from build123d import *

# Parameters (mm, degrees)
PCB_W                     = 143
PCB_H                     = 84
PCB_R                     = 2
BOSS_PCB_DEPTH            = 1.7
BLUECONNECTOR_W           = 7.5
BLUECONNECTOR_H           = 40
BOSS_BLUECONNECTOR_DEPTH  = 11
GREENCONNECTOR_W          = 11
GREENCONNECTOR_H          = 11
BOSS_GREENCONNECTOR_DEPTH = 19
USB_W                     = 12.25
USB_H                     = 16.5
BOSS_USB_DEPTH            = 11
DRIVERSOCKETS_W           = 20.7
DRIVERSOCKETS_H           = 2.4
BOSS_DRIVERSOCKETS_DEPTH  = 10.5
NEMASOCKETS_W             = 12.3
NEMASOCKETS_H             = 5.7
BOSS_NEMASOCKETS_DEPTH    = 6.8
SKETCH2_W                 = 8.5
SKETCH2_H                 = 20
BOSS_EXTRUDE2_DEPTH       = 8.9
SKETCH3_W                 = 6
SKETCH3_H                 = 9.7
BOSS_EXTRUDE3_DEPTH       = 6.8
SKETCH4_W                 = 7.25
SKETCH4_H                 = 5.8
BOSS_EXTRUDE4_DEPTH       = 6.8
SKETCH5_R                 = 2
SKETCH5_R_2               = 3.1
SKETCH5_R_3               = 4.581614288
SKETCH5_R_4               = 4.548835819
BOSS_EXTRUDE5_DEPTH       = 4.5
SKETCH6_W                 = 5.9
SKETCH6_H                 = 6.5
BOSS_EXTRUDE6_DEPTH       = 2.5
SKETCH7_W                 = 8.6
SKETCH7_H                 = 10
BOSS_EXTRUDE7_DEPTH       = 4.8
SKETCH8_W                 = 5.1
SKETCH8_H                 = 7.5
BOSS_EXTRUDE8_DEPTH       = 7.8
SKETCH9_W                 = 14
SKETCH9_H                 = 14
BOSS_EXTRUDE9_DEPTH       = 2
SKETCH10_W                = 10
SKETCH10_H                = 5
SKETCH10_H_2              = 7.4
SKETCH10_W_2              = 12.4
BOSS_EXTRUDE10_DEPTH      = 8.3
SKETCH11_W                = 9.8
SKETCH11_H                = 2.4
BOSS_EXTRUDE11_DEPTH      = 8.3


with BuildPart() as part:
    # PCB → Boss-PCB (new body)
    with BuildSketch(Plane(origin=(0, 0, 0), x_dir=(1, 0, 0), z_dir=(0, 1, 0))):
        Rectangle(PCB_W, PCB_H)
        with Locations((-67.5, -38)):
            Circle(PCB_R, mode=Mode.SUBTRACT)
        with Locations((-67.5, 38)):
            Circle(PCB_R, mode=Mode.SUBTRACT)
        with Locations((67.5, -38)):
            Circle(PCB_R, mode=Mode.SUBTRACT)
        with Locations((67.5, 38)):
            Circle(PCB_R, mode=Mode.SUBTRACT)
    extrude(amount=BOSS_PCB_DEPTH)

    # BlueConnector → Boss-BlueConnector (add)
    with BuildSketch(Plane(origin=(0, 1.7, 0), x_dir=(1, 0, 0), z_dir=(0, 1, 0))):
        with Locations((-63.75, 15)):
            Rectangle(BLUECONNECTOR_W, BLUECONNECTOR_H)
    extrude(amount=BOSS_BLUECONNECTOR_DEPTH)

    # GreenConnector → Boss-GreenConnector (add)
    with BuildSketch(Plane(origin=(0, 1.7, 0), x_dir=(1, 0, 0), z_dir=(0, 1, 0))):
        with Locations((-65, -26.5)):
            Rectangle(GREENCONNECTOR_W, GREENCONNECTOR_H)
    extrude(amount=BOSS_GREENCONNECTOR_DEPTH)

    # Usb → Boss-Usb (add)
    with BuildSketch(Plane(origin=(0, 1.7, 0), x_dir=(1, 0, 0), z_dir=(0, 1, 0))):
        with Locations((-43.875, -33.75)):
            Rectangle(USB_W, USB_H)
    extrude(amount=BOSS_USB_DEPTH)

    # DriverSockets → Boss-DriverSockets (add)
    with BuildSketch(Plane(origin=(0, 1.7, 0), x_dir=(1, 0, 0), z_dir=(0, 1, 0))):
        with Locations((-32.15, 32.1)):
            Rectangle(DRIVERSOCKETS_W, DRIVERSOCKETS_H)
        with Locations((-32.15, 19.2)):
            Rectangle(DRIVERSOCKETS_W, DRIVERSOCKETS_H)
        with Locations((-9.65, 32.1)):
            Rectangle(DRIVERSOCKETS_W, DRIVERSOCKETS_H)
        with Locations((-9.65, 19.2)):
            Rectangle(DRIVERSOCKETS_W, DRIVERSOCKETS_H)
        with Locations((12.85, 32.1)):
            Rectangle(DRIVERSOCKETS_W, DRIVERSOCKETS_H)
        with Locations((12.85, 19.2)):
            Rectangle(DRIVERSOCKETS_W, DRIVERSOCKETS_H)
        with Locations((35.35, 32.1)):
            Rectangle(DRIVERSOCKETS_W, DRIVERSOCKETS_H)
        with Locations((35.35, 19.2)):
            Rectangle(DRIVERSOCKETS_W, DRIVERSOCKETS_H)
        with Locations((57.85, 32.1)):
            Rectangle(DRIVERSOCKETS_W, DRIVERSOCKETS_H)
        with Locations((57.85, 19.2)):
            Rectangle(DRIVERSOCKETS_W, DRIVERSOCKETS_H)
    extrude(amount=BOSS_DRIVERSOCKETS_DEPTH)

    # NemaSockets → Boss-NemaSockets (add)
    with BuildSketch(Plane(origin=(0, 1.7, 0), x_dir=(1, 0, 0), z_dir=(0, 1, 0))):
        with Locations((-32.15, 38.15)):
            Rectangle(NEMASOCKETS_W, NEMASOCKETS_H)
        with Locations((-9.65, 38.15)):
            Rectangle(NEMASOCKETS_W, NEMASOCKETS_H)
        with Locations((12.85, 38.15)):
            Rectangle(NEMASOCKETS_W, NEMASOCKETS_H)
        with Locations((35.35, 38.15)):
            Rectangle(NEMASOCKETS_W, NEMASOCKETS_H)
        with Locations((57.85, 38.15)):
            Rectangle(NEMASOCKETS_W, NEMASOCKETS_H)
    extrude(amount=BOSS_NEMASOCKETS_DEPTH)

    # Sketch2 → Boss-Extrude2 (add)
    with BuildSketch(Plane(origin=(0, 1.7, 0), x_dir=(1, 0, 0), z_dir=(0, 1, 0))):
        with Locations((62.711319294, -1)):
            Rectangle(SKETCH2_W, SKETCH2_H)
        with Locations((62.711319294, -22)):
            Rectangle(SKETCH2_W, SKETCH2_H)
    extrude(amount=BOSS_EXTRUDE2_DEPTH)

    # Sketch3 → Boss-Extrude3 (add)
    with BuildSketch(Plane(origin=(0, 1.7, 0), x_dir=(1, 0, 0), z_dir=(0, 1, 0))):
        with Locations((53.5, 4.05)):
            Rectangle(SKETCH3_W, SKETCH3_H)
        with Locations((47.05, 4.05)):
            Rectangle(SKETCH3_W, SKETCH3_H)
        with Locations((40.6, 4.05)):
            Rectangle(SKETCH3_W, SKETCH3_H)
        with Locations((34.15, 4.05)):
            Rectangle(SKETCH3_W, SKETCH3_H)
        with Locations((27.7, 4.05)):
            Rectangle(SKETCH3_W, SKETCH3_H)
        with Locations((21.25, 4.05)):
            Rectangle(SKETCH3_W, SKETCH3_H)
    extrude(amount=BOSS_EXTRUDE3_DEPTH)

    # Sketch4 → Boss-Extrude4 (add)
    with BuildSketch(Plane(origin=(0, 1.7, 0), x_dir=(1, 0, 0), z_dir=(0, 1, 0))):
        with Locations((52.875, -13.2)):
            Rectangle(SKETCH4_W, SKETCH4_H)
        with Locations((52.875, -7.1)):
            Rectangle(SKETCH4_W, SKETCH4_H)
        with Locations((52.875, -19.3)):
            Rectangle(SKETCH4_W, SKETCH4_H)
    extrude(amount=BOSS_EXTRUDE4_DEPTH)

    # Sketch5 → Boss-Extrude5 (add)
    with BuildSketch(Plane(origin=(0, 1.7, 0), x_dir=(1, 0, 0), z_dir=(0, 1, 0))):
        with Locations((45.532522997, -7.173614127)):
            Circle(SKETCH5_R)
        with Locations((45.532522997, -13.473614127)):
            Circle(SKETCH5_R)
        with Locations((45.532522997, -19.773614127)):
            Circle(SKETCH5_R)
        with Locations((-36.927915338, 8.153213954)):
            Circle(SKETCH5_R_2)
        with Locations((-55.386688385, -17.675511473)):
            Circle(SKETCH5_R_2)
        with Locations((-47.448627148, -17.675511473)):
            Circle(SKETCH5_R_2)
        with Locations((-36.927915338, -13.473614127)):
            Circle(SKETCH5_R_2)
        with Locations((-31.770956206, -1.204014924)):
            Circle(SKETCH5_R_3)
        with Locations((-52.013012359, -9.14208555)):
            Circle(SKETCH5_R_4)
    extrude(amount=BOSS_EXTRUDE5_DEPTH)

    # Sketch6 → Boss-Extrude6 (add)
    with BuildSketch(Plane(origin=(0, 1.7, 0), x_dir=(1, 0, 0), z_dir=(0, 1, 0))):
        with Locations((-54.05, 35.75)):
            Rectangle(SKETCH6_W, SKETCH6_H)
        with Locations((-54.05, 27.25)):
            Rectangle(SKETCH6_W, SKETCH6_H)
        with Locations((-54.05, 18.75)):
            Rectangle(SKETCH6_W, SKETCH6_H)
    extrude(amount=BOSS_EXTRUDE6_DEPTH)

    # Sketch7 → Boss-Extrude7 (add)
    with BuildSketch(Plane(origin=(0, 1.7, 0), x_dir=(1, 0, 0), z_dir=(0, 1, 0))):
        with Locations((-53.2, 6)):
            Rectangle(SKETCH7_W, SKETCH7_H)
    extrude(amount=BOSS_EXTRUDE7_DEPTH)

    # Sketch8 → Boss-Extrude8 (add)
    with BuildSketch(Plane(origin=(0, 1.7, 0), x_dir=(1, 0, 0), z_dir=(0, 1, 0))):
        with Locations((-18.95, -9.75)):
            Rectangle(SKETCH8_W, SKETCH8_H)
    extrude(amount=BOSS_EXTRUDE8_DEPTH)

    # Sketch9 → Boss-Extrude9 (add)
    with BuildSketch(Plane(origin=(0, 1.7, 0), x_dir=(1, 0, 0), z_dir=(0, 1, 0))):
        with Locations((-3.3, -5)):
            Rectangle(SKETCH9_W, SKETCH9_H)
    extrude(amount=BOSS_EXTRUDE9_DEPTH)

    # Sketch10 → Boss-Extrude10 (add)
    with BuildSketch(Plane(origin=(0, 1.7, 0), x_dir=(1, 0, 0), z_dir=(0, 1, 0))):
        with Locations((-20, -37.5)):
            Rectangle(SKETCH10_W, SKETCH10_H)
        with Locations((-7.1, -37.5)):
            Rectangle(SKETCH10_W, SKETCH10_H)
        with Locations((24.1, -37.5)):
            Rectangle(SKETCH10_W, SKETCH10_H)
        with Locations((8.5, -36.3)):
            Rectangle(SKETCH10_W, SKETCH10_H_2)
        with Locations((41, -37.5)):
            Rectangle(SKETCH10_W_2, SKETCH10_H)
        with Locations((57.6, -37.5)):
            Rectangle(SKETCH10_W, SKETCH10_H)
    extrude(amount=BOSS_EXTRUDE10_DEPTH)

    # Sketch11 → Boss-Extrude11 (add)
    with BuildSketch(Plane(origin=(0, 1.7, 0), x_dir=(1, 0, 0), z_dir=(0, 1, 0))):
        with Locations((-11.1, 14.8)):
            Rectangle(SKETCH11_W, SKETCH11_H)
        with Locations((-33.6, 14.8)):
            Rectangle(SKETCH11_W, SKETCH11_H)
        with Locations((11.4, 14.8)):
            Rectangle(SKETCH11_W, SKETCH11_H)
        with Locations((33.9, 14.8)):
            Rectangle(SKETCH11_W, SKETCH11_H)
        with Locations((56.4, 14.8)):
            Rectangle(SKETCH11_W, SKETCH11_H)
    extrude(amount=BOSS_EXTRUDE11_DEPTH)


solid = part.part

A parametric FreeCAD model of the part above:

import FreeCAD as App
import Part
import Sketcher
from FreeCAD import Vector


def add_polygon(sketch, points):
    """Adds a closed chain of lines whose ends are joined by coincident constraints."""
    first, n = sketch.GeometryCount, len(points)
    for a, b in zip(points, points[1:] + points[:1]):
        sketch.addGeometry(Part.LineSegment(App.Vector(*a, 0), App.Vector(*b, 0)), False)
    for i in range(n):
        sketch.addConstraint(Sketcher.Constraint("Coincident", first + i, 2, first + (i + 1) % n, 1))

doc = App.newDocument("Part")
body = doc.addObject("PartDesign::Body", "Body")

# Sketch on XZ plane
sketch1 = body.newObject("Sketcher::SketchObject", "Sketch")
sketch1.AttachmentSupport = (doc.getObject("XZ_Plane"), [""])
sketch1.MapMode = "FlatFace"
add_polygon(sketch1, [(-71.5, -42), (-71.5, 42), (71.5, 42), (71.5, -42)])  # lines 0-3
sketch1.addGeometry(Part.Circle(Vector(-67.5, 38, 0), Vector(0, 0, 1), 2), False)  # 4
sketch1.addGeometry(Part.Circle(Vector(67.5, 38, 0), Vector(0, 0, 1), 2), False)  # 5
sketch1.addGeometry(Part.Circle(Vector(-67.5, -38, 0), Vector(0, 0, 1), 2), False)  # 6
sketch1.addGeometry(Part.Circle(Vector(67.5, -38, 0), Vector(0, 0, 1), 2), False)  # 7
sketch1.addConstraint(Sketcher.Constraint("Vertical", 0))
sketch1.addConstraint(Sketcher.Constraint("Horizontal", 1))
sketch1.addConstraint(Sketcher.Constraint("Vertical", 2))
sketch1.addConstraint(Sketcher.Constraint("Horizontal", 3))
sketch1.addConstraint(Sketcher.Constraint("Equal", 4, 5))
sketch1.addConstraint(Sketcher.Constraint("Equal", 5, 6))
sketch1.addConstraint(Sketcher.Constraint("Equal", 6, 7))
sketch1.addConstraint(Sketcher.Constraint("Symmetric", 5, 3, 6, 3, -1, 1))
sketch1.addConstraint(Sketcher.Constraint("Symmetric", 4, 3, 7, 3, -1, 1))
sketch1.addConstraint(Sketcher.Constraint("Symmetric", 0, 2, 2, 2, -1, 1))
sketch1.addConstraint(Sketcher.Constraint("Symmetric", 4, 3, 5, 3, -2))
sketch1.addConstraint(Sketcher.Constraint("Diameter", 4, 4.0))
sketch1.addConstraint(Sketcher.Constraint("DistanceX", 1, 1, 1, 2, 143.0))
sketch1.addConstraint(Sketcher.Constraint("DistanceY", 0, 1, 0, 2, 84.0))
sketch1.addConstraint(Sketcher.Constraint("DistanceY", -1, 1, 4, 3, 38.0))
sketch1.addConstraint(Sketcher.Constraint("DistanceX", 4, 3, 5, 3, 135.0))
pad1 = body.newObject("PartDesign::Pad", "Pad")
pad1.Profile = sketch1
pad1.Length = 1.7
pad1.Reversed = True

# Sketch on XZ plane
sketch2 = body.newObject("Sketcher::SketchObject", "Sketch001")
sketch2.AttachmentSupport = (doc.getObject("XZ_Plane"), [""])
sketch2.MapMode = "FlatFace"
sketch2.AttachmentOffset = App.Placement(Vector(0, 0, -1.7), App.Rotation())
add_polygon(sketch2, [(-68, -35), (-68, 5), (-60, 5), (-60, -35)])  # lines 0-3
sketch2.addConstraint(Sketcher.Constraint("Vertical", 0))
sketch2.addConstraint(Sketcher.Constraint("Horizontal", 1))
sketch2.addConstraint(Sketcher.Constraint("Vertical", 2))
sketch2.addConstraint(Sketcher.Constraint("Horizontal", 3))
sketch2.addConstraint(Sketcher.Constraint("DistanceY", 0, 1, 0, 2, 40.0))
sketch2.addConstraint(Sketcher.Constraint("DistanceX", 1, 1, 1, 2, 7.5))
sketch2.addConstraint(Sketcher.Constraint("DistanceY", -1, 1, 0, 2, 5.0))
sketch2.addConstraint(Sketcher.Constraint("DistanceX", 1, 2, -1, 1, 60.0))
pad2 = body.newObject("PartDesign::Pad", "Pad001")
pad2.Profile = sketch2
pad2.Length = 11
pad2.Reversed = True

# Sketch on XZ plane
sketch3 = body.newObject("Sketcher::SketchObject", "Sketch002")
sketch3.AttachmentSupport = (doc.getObject("XZ_Plane"), [""])
sketch3.MapMode = "FlatFace"
sketch3.AttachmentOffset = App.Placement(Vector(0, 0, -1.7), App.Rotation())
add_polygon(sketch3, [(-70, 21), (-70, 32), (-60, 32), (-60, 21)])  # lines 0-3
sketch3.addConstraint(Sketcher.Constraint("Vertical", 0))
sketch3.addConstraint(Sketcher.Constraint("Horizontal", 1))
sketch3.addConstraint(Sketcher.Constraint("Vertical", 2))
sketch3.addConstraint(Sketcher.Constraint("Horizontal", 3))
sketch3.addConstraint(Sketcher.Constraint("Equal", 3, 0))
sketch3.addConstraint(Sketcher.Constraint("DistanceX", 1, 1, 1, 2, 11.0))
sketch3.addConstraint(Sketcher.Constraint("DistanceY", -1, 1, 0, 2, 32.0))
sketch3.addConstraint(Sketcher.Constraint("DistanceX", 0, 2, -1, 1, 70.5))
pad3 = body.newObject("PartDesign::Pad", "Pad002")
pad3.Profile = sketch3
pad3.Length = 19
pad3.Reversed = True

# Sketch on XZ plane
sketch4 = body.newObject("Sketcher::SketchObject", "Sketch003")
sketch4.AttachmentSupport = (doc.getObject("XZ_Plane"), [""])
sketch4.MapMode = "FlatFace"
sketch4.AttachmentOffset = App.Placement(Vector(0, 0, -1.7), App.Rotation())
add_polygon(sketch4, [(-50, 26), (-50, 42), (-38, 42), (-38, 26)])  # lines 0-3
sketch4.addConstraint(Sketcher.Constraint("Vertical", 0))
sketch4.addConstraint(Sketcher.Constraint("Horizontal", 1))
sketch4.addConstraint(Sketcher.Constraint("Vertical", 2))
sketch4.addConstraint(Sketcher.Constraint("Horizontal", 3))
sketch4.addConstraint(Sketcher.Constraint("DistanceY", 0, 1, 0, 2, 16.5))
sketch4.addConstraint(Sketcher.Constraint("DistanceX", 0, 2, -1, 1, 50.0))
sketch4.addConstraint(Sketcher.Constraint("DistanceY", -1, 1, 0, 2, 42.0))
sketch4.addConstraint(Sketcher.Constraint("DistanceX", 1, 1, 1, 2, 12.25))
pad4 = body.newObject("PartDesign::Pad", "Pad003")
pad4.Profile = sketch4
pad4.Length = 11
pad4.Reversed = True

# Sketch on XZ plane
sketch5 = body.newObject("Sketcher::SketchObject", "Sketch004")
sketch5.AttachmentSupport = (doc.getObject("XZ_Plane"), [""])
sketch5.MapMode = "FlatFace"
sketch5.AttachmentOffset = App.Placement(Vector(0, 0, -1.7), App.Rotation())
add_polygon(sketch5, [(-42.5, -33.3), (-42.5, -30.9), (-21.8, -30.9), (-21.8, -33.3)])  # lines 0-3
add_polygon(sketch5, [(-42.5, -20.4), (-42.5, -18), (-21.8, -18), (-21.8, -20.4)])  # lines 4-7
add_polygon(sketch5, [(-20, -33.3), (-20, -30.9), (0.7, -30.9), (0.7, -33.3)])  # lines 8-11
add_polygon(sketch5, [(-20, -20.4), (-20, -18), (0.7, -18), (0.7, -20.4)])  # lines 12-15
add_polygon(sketch5, [(2.5, -33.3), (2.5, -30.9), (23.2, -30.9), (23.2, -33.3)])  # lines 16-19
add_polygon(sketch5, [(2.5, -20.4), (2.5, -18), (23.2, -18), (23.2, -20.4)])  # lines 20-23
add_polygon(sketch5, [(25, -33.3), (25, -30.9), (45.7, -30.9), (45.7, -33.3)])  # lines 24-27
add_polygon(sketch5, [(25, -20.4), (25, -18), (45.7, -18), (45.7, -20.4)])  # lines 28-31
add_polygon(sketch5, [(47.5, -33.3), (47.5, -30.9), (68.2, -30.9), (68.2, -33.3)])  # lines 32-35
add_polygon(sketch5, [(47.5, -20.4), (47.5, -18), (68.2, -18), (68.2, -20.4)])  # lines 36-39
sketch5.addConstraint(Sketcher.Constraint("Vertical", 0))
sketch5.addConstraint(Sketcher.Constraint("Horizontal", 1))
sketch5.addConstraint(Sketcher.Constraint("Vertical", 2))
sketch5.addConstraint(Sketcher.Constraint("Horizontal", 3))
sketch5.addConstraint(Sketcher.Constraint("Vertical", 4))
sketch5.addConstraint(Sketcher.Constraint("Horizontal", 5))
sketch5.addConstraint(Sketcher.Constraint("Vertical", 6))
sketch5.addConstraint(Sketcher.Constraint("Horizontal", 7))
sketch5.addConstraint(Sketcher.Constraint("Vertical", 8))
sketch5.addConstraint(Sketcher.Constraint("Horizontal", 9))
sketch5.addConstraint(Sketcher.Constraint("Vertical", 10))
sketch5.addConstraint(Sketcher.Constraint("Horizontal", 11))
sketch5.addConstraint(Sketcher.Constraint("Vertical", 12))
sketch5.addConstraint(Sketcher.Constraint("Horizontal", 13))
sketch5.addConstraint(Sketcher.Constraint("Vertical", 14))
sketch5.addConstraint(Sketcher.Constraint("Horizontal", 15))
sketch5.addConstraint(Sketcher.Constraint("Vertical", 16))
sketch5.addConstraint(Sketcher.Constraint("Horizontal", 17))
sketch5.addConstraint(Sketcher.Constraint("Vertical", 18))
sketch5.addConstraint(Sketcher.Constraint("Horizontal", 19))
sketch5.addConstraint(Sketcher.Constraint("Vertical", 20))
sketch5.addConstraint(Sketcher.Constraint("Horizontal", 21))
sketch5.addConstraint(Sketcher.Constraint("Vertical", 22))
sketch5.addConstraint(Sketcher.Constraint("Horizontal", 23))
sketch5.addConstraint(Sketcher.Constraint("Vertical", 24))
sketch5.addConstraint(Sketcher.Constraint("Horizontal", 25))
sketch5.addConstraint(Sketcher.Constraint("Vertical", 26))
sketch5.addConstraint(Sketcher.Constraint("Horizontal", 27))
sketch5.addConstraint(Sketcher.Constraint("Vertical", 28))
sketch5.addConstraint(Sketcher.Constraint("Horizontal", 29))
sketch5.addConstraint(Sketcher.Constraint("Vertical", 30))
sketch5.addConstraint(Sketcher.Constraint("Horizontal", 31))
sketch5.addConstraint(Sketcher.Constraint("Vertical", 32))
sketch5.addConstraint(Sketcher.Constraint("Horizontal", 33))
sketch5.addConstraint(Sketcher.Constraint("Vertical", 34))
sketch5.addConstraint(Sketcher.Constraint("Horizontal", 35))
sketch5.addConstraint(Sketcher.Constraint("Vertical", 36))
sketch5.addConstraint(Sketcher.Constraint("Horizontal", 37))
sketch5.addConstraint(Sketcher.Constraint("Vertical", 38))
sketch5.addConstraint(Sketcher.Constraint("Horizontal", 39))
sketch5.addConstraint(Sketcher.Constraint("Horizontal", 1, 2, 8, 2))
sketch5.addConstraint(Sketcher.Constraint("Horizontal", 3, 2, 10, 2))
sketch5.addConstraint(Sketcher.Constraint("Horizontal", 5, 2, 12, 2))
sketch5.addConstraint(Sketcher.Constraint("Horizontal", 7, 2, 14, 2))
sketch5.addConstraint(Sketcher.Constraint("Horizontal", 9, 2, 16, 2))
sketch5.addConstraint(Sketcher.Constraint("Horizontal", 11, 2, 18, 2))
sketch5.addConstraint(Sketcher.Constraint("Horizontal", 13, 2, 20, 2))
sketch5.addConstraint(Sketcher.Constraint("Horizontal", 15, 2, 22, 2))
sketch5.addConstraint(Sketcher.Constraint("Horizontal", 17, 2, 24, 2))
sketch5.addConstraint(Sketcher.Constraint("Horizontal", 19, 2, 26, 2))
sketch5.addConstraint(Sketcher.Constraint("Horizontal", 21, 2, 28, 2))
sketch5.addConstraint(Sketcher.Constraint("Horizontal", 23, 2, 30, 2))
sketch5.addConstraint(Sketcher.Constraint("Horizontal", 25, 2, 32, 2))
sketch5.addConstraint(Sketcher.Constraint("Horizontal", 27, 2, 34, 2))
sketch5.addConstraint(Sketcher.Constraint("Horizontal", 29, 2, 36, 2))
sketch5.addConstraint(Sketcher.Constraint("Horizontal", 31, 2, 38, 2))
sketch5.addConstraint(Sketcher.Constraint("Vertical", 3, 2, 4, 2))
sketch5.addConstraint(Sketcher.Constraint("Vertical", 2, 2, 5, 2))
sketch5.addConstraint(Sketcher.Constraint("Vertical", 11, 2, 12, 2))
sketch5.addConstraint(Sketcher.Constraint("Vertical", 10, 2, 13, 2))
sketch5.addConstraint(Sketcher.Constraint("Vertical", 19, 2, 20, 2))
sketch5.addConstraint(Sketcher.Constraint("Vertical", 18, 2, 21, 2))
sketch5.addConstraint(Sketcher.Constraint("Vertical", 27, 2, 28, 2))
sketch5.addConstraint(Sketcher.Constraint("Vertical", 26, 2, 29, 2))
sketch5.addConstraint(Sketcher.Constraint("Vertical", 35, 2, 36, 2))
sketch5.addConstraint(Sketcher.Constraint("Vertical", 34, 2, 37, 2))
sketch5.addConstraint(Sketcher.Constraint("Equal", 7, 9))
sketch5.addConstraint(Sketcher.Constraint("Equal", 15, 17))
sketch5.addConstraint(Sketcher.Constraint("Equal", 23, 25))
sketch5.addConstraint(Sketcher.Constraint("Equal", 31, 33))
sketch5.addConstraint(Sketcher.Constraint("Equal", 2, 4))
sketch5.addConstraint(Sketcher.Constraint("DistanceX", 1, 1, 1, 2, 20.7))
sketch5.addConstraint(Sketcher.Constraint("DistanceY", 0, 1, 0, 2, 2.4))
sketch5.addConstraint(Sketcher.Constraint("DistanceY", 4, 2, -1, 1, 18.0))
sketch5.addConstraint(Sketcher.Constraint("DistanceX", 8, 2, -1, 1, 20.0))
sketch5.addConstraint(Sketcher.Constraint("DistanceX", -1, 1, 24, 2, 25.0))
sketch5.addConstraint(Sketcher.Constraint("DistanceX", 0, 2, -1, 1, 42.5))
sketch5.addConstraint(Sketcher.Constraint("DistanceY", 0, 2, -1, 1, 30.9))
sketch5.addConstraint(Sketcher.Constraint("DistanceX", -1, 1, 16, 2, 2.5))
sketch5.addConstraint(Sketcher.Constraint("DistanceX", -1, 1, 32, 2, 47.5))
pad5 = body.newObject("PartDesign::Pad", "Pad004")
pad5.Profile = sketch5
pad5.Length = 10.5
pad5.Reversed = True

# Sketch on XZ plane
sketch6 = body.newObject("Sketcher::SketchObject", "Sketch005")
sketch6.AttachmentSupport = (doc.getObject("XZ_Plane"), [""])
sketch6.MapMode = "FlatFace"
sketch6.AttachmentOffset = App.Placement(Vector(0, 0, -1.7), App.Rotation())
add_polygon(sketch6, [(-38, -41), (-38, -35), (-26, -35), (-26, -41)])  # lines 0-3
add_polygon(sketch6, [(-16, -41), (-16, -35), (-4, -35), (-4, -41)])  # lines 4-7
add_polygon(sketch6, [(7, -41), (7, -35), (19, -35), (19, -41)])  # lines 8-11
add_polygon(sketch6, [(29, -41), (29, -35), (42, -35), (42, -41)])  # lines 12-15
add_polygon(sketch6, [(52, -41), (52, -35), (64, -35), (64, -41)])  # lines 16-19
sketch6.addConstraint(Sketcher.Constraint("Vertical", 0))
sketch6.addConstraint(Sketcher.Constraint("Horizontal", 1))
sketch6.addConstraint(Sketcher.Constraint("Vertical", 2))
sketch6.addConstraint(Sketcher.Constraint("Horizontal", 3))
sketch6.addConstraint(Sketcher.Constraint("Vertical", 4))
sketch6.addConstraint(Sketcher.Constraint("Horizontal", 5))
sketch6.addConstraint(Sketcher.Constraint("Vertical", 6))
sketch6.addConstraint(Sketcher.Constraint("Horizontal", 7))
sketch6.addConstraint(Sketcher.Constraint("Vertical", 8))
sketch6.addConstraint(Sketcher.Constraint("Horizontal", 9))
sketch6.addConstraint(Sketcher.Constraint("Vertical", 10))
sketch6.addConstraint(Sketcher.Constraint("Horizontal", 11))
sketch6.addConstraint(Sketcher.Constraint("Vertical", 12))
sketch6.addConstraint(Sketcher.Constraint("Horizontal", 13))
sketch6.addConstraint(Sketcher.Constraint("Vertical", 14))
sketch6.addConstraint(Sketcher.Constraint("Horizontal", 15))
sketch6.addConstraint(Sketcher.Constraint("Vertical", 16))
sketch6.addConstraint(Sketcher.Constraint("Horizontal", 17))
sketch6.addConstraint(Sketcher.Constraint("Vertical", 18))
sketch6.addConstraint(Sketcher.Constraint("Horizontal", 19))
sketch6.addConstraint(Sketcher.Constraint("Horizontal", 1, 2, 4, 2))
sketch6.addConstraint(Sketcher.Constraint("Horizontal", 3, 2, 6, 2))
sketch6.addConstraint(Sketcher.Constraint("Horizontal", 5, 2, 8, 2))
sketch6.addConstraint(Sketcher.Constraint("Horizontal", 7, 2, 10, 2))
sketch6.addConstraint(Sketcher.Constraint("Horizontal", 9, 2, 12, 2))
sketch6.addConstraint(Sketcher.Constraint("Horizontal", 11, 2, 14, 2))
sketch6.addConstraint(Sketcher.Constraint("Horizontal", 13, 2, 16, 2))
sketch6.addConstraint(Sketcher.Constraint("Horizontal", 15, 2, 18, 2))
sketch6.addConstraint(Sketcher.Constraint("Equal", 3, 5))
sketch6.addConstraint(Sketcher.Constraint("Equal", 7, 9))
sketch6.addConstraint(Sketcher.Constraint("Equal", 11, 13))
sketch6.addConstraint(Sketcher.Constraint("Equal", 15, 17))
sketch6.addConstraint(Sketcher.Constraint("DistanceX", 1, 1, 1, 2, 12.3))
sketch6.addConstraint(Sketcher.Constraint("DistanceY", 0, 1, 0, 2, 5.7))
sketch6.addConstraint(Sketcher.Constraint("DistanceX", 1, 2, -1, 1, 26.0))
sketch6.addConstraint(Sketcher.Constraint("DistanceY", 2, 2, -1, 1, 41.0))
sketch6.addConstraint(Sketcher.Constraint("DistanceX", -1, 1, 9, 2, 19.0))
sketch6.addConstraint(Sketcher.Constraint("DistanceX", -1, 1, 17, 2, 64.0))
sketch6.addConstraint(Sketcher.Constraint("DistanceX", 4, 2, -1, 1, 15.8))
sketch6.addConstraint(Sketcher.Constraint("DistanceX", -1, 1, 12, 2, 29.2))
pad6 = body.newObject("PartDesign::Pad", "Pad005")
pad6.Profile = sketch6
pad6.Length = 6.8
pad6.Reversed = True

# Sketch on XZ plane
sketch7 = body.newObject("Sketcher::SketchObject", "Sketch006")
sketch7.AttachmentSupport = (doc.getObject("XZ_Plane"), [""])
sketch7.MapMode = "FlatFace"
sketch7.AttachmentOffset = App.Placement(Vector(0, 0, -1.7), App.Rotation())
add_polygon(sketch7, [(58, -9), (58, 11), (67, 11), (67, -9)])  # lines 0-3
add_polygon(sketch7, [(58, 12), (58, 32), (67, 32), (67, 12)])  # lines 4-7
sketch7.addConstraint(Sketcher.Constraint("Vertical", 0))
sketch7.addConstraint(Sketcher.Constraint("Horizontal", 1))
sketch7.addConstraint(Sketcher.Constraint("Vertical", 2))
sketch7.addConstraint(Sketcher.Constraint("Horizontal", 3))
sketch7.addConstraint(Sketcher.Constraint("Vertical", 4))
sketch7.addConstraint(Sketcher.Constraint("Horizontal", 5))
sketch7.addConstraint(Sketcher.Constraint("Vertical", 6))
sketch7.addConstraint(Sketcher.Constraint("Horizontal", 7))
sketch7.addConstraint(Sketcher.Constraint("Vertical", 3, 2, 4, 2))
sketch7.addConstraint(Sketcher.Constraint("Vertical", 2, 2, 5, 2))
sketch7.addConstraint(Sketcher.Constraint("Equal", 2, 4))
sketch7.addConstraint(Sketcher.Constraint("DistanceY", 0, 1, 0, 2, 20.0))
sketch7.addConstraint(Sketcher.Constraint("DistanceX", 1, 1, 1, 2, 8.5))
sketch7.addConstraint(Sketcher.Constraint("DistanceY", -1, 1, 0, 2, 11.0))
sketch7.addConstraint(Sketcher.Constraint("DistanceY", -1, 1, 4, 2, 32.0))
sketch7.addConstraint(Sketcher.Constraint("DistanceX", -1, 1, 0, 2, 58.461319))
pad7 = body.newObject("PartDesign::Pad", "Pad006")
pad7.Profile = sketch7
pad7.Length = 8.9
pad7.Reversed = True

# Sketch on XZ plane
sketch8 = body.newObject("Sketcher::SketchObject", "Sketch007")
sketch8.AttachmentSupport = (doc.getObject("XZ_Plane"), [""])
sketch8.MapMode = "FlatFace"
sketch8.AttachmentOffset = App.Placement(Vector(0, 0, -1.7), App.Rotation())
add_polygon(sketch8, [(50, -9), (50, 1), (56, 1), (56, -9)])  # lines 0-3
add_polygon(sketch8, [(44, -9), (44, 1), (50, 1), (50, -9)])  # lines 4-7
add_polygon(sketch8, [(38, -9), (38, 1), (44, 1), (44, -9)])  # lines 8-11
add_polygon(sketch8, [(31, -9), (31, 1), (37, 1), (37, -9)])  # lines 12-15
add_polygon(sketch8, [(25, -9), (25, 1), (31, 1), (31, -9)])  # lines 16-19
add_polygon(sketch8, [(18, -9), (18, 1), (24, 1), (24, -9)])  # lines 20-23
sketch8.addConstraint(Sketcher.Constraint("Vertical", 0))
sketch8.addConstraint(Sketcher.Constraint("Horizontal", 1))
sketch8.addConstraint(Sketcher.Constraint("Vertical", 2))
sketch8.addConstraint(Sketcher.Constraint("Horizontal", 3))
sketch8.addConstraint(Sketcher.Constraint("Vertical", 4))
sketch8.addConstraint(Sketcher.Constraint("Horizontal", 5))
sketch8.addConstraint(Sketcher.Constraint("Vertical", 6))
sketch8.addConstraint(Sketcher.Constraint("Horizontal", 7))
sketch8.addConstraint(Sketcher.Constraint("Vertical", 8))
sketch8.addConstraint(Sketcher.Constraint("Horizontal", 9))
sketch8.addConstraint(Sketcher.Constraint("Vertical", 10))
sketch8.addConstraint(Sketcher.Constraint("Horizontal", 11))
sketch8.addConstraint(Sketcher.Constraint("Vertical", 12))
sketch8.addConstraint(Sketcher.Constraint("Horizontal", 13))
sketch8.addConstraint(Sketcher.Constraint("Vertical", 14))
sketch8.addConstraint(Sketcher.Constraint("Horizontal", 15))
sketch8.addConstraint(Sketcher.Constraint("Vertical", 16))
sketch8.addConstraint(Sketcher.Constraint("Horizontal", 17))
sketch8.addConstraint(Sketcher.Constraint("Vertical", 18))
sketch8.addConstraint(Sketcher.Constraint("Horizontal", 19))
sketch8.addConstraint(Sketcher.Constraint("Vertical", 20))
sketch8.addConstraint(Sketcher.Constraint("Horizontal", 21))
sketch8.addConstraint(Sketcher.Constraint("Vertical", 22))
sketch8.addConstraint(Sketcher.Constraint("Horizontal", 23))
sketch8.addConstraint(Sketcher.Constraint("Horizontal", 1, 2, 4, 2))
sketch8.addConstraint(Sketcher.Constraint("Horizontal", 3, 2, 6, 2))
sketch8.addConstraint(Sketcher.Constraint("Horizontal", 5, 2, 8, 2))
sketch8.addConstraint(Sketcher.Constraint("Horizontal", 7, 2, 10, 2))
sketch8.addConstraint(Sketcher.Constraint("Horizontal", 9, 2, 12, 2))
sketch8.addConstraint(Sketcher.Constraint("Horizontal", 11, 2, 14, 2))
sketch8.addConstraint(Sketcher.Constraint("Horizontal", 13, 2, 16, 2))
sketch8.addConstraint(Sketcher.Constraint("Horizontal", 15, 2, 18, 2))
sketch8.addConstraint(Sketcher.Constraint("Horizontal", 17, 2, 20, 2))
sketch8.addConstraint(Sketcher.Constraint("Horizontal", 19, 2, 22, 2))
sketch8.addConstraint(Sketcher.Constraint("Equal", 3, 5))
sketch8.addConstraint(Sketcher.Constraint("Equal", 7, 9))
sketch8.addConstraint(Sketcher.Constraint("Equal", 11, 13))
sketch8.addConstraint(Sketcher.Constraint("Equal", 15, 17))
sketch8.addConstraint(Sketcher.Constraint("Equal", 19, 21))
sketch8.addConstraint(Sketcher.Constraint("DistanceX", 1, 1, 1, 2, 6.0))
sketch8.addConstraint(Sketcher.Constraint("DistanceY", 0, 1, 0, 2, 9.7))
sketch8.addConstraint(Sketcher.Constraint("DistanceX", -1, 1, 0, 2, 50.5))
sketch8.addConstraint(Sketcher.Constraint("DistanceY", -1, 1, 0, 2, 0.8))
sketch8.addConstraint(Sketcher.Constraint("DistanceX", -1, 1, 8, 2, 37.6))
sketch8.addConstraint(Sketcher.Constraint("DistanceX", -1, 1, 16, 2, 24.7))
sketch8.addConstraint(Sketcher.Constraint("DistanceX", 12, 2, 4, 2, 12.9))
sketch8.addConstraint(Sketcher.Constraint("DistanceX", 20, 2, 12, 2, 12.9))
sketch8.addConstraint(Sketcher.Constraint("DistanceX", -1, 1, 4, 2, 44.05))
pad8 = body.newObject("PartDesign::Pad", "Pad007")
pad8.Profile = sketch8
pad8.Length = 6.8
pad8.Reversed = True

# Sketch on XZ plane
sketch9 = body.newObject("Sketcher::SketchObject", "Sketch008")
sketch9.AttachmentSupport = (doc.getObject("XZ_Plane"), [""])
sketch9.MapMode = "FlatFace"
sketch9.AttachmentOffset = App.Placement(Vector(0, 0, -1.7), App.Rotation())
add_polygon(sketch9, [(49, 10), (49, 16), (56, 16), (56, 10)])  # lines 0-3
add_polygon(sketch9, [(49, 4), (49, 10), (56, 10), (56, 4)])  # lines 4-7
add_polygon(sketch9, [(49, 16), (49, 22), (56, 22), (56, 16)])  # lines 8-11
sketch9.addConstraint(Sketcher.Constraint("Vertical", 0))
sketch9.addConstraint(Sketcher.Constraint("Horizontal", 1))
sketch9.addConstraint(Sketcher.Constraint("Vertical", 2))
sketch9.addConstraint(Sketcher.Constraint("Horizontal", 3))
sketch9.addConstraint(Sketcher.Constraint("Vertical", 4))
sketch9.addConstraint(Sketcher.Constraint("Horizontal", 5))
sketch9.addConstraint(Sketcher.Constraint("Vertical", 6))
sketch9.addConstraint(Sketcher.Constraint("Horizontal", 7))
sketch9.addConstraint(Sketcher.Constraint("Vertical", 8))
sketch9.addConstraint(Sketcher.Constraint("Horizontal", 9))
sketch9.addConstraint(Sketcher.Constraint("Vertical", 10))
sketch9.addConstraint(Sketcher.Constraint("Horizontal", 11))
sketch9.addConstraint(Sketcher.Constraint("Vertical", 3, 2, 4, 2))
sketch9.addConstraint(Sketcher.Constraint("Vertical", 2, 2, 5, 2))
sketch9.addConstraint(Sketcher.Constraint("Vertical", 7, 2, 8, 2))
sketch9.addConstraint(Sketcher.Constraint("Vertical", 6, 2, 9, 2))
sketch9.addConstraint(Sketcher.Constraint("Equal", 2, 4))
sketch9.addConstraint(Sketcher.Constraint("Equal", 6, 8))
sketch9.addConstraint(Sketcher.Constraint("DistanceY", 0, 1, 0, 2, 5.8))
sketch9.addConstraint(Sketcher.Constraint("DistanceY", -1, 1, 4, 2, 10.0))
sketch9.addConstraint(Sketcher.Constraint("DistanceX", 1, 1, 1, 2, 7.25))
sketch9.addConstraint(Sketcher.Constraint("DistanceY", -1, 1, 0, 2, 16.1))
sketch9.addConstraint(Sketcher.Constraint("DistanceX", -1, 1, 1, 2, 56.5))
sketch9.addConstraint(Sketcher.Constraint("DistanceY", -1, 1, 8, 2, 22.2))
pad9 = body.newObject("PartDesign::Pad", "Pad008")
pad9.Profile = sketch9
pad9.Length = 6.8
pad9.Reversed = True

# Sketch on XZ plane
sketch10 = body.newObject("Sketcher::SketchObject", "Sketch009")
sketch10.AttachmentSupport = (doc.getObject("XZ_Plane"), [""])
sketch10.MapMode = "FlatFace"
sketch10.AttachmentOffset = App.Placement(Vector(0, 0, -1.7), App.Rotation())
sketch10.addGeometry(Part.Circle(Vector(45.5, 7.2, 0), Vector(0, 0, 1), 2), False)
sketch10.addGeometry(Part.Circle(Vector(45.5, 13.5, 0), Vector(0, 0, 1), 2), False)
sketch10.addGeometry(Part.Circle(Vector(45.5, 19.8, 0), Vector(0, 0, 1), 2), False)
sketch10.addGeometry(Part.Circle(Vector(-36.9, -8.2, 0), Vector(0, 0, 1), 3.1), False)
sketch10.addGeometry(Part.Circle(Vector(-55.4, 17.7, 0), Vector(0, 0, 1), 3.1), False)
sketch10.addGeometry(Part.Circle(Vector(-47.4, 17.7, 0), Vector(0, 0, 1), 3.1), False)
sketch10.addGeometry(Part.Circle(Vector(-36.9, 13.5, 0), Vector(0, 0, 1), 3.1), False)
sketch10.addGeometry(Part.Circle(Vector(-31.8, 1.2, 0), Vector(0, 0, 1), 4.6), False)
sketch10.addGeometry(Part.Circle(Vector(-52, 9.1, 0), Vector(0, 0, 1), 4.5), False)
sketch10.addConstraint(Sketcher.Constraint("Equal", 0, 1))
sketch10.addConstraint(Sketcher.Constraint("Equal", 1, 2))
sketch10.addConstraint(Sketcher.Constraint("Equal", 3, 4))
sketch10.addConstraint(Sketcher.Constraint("Equal", 4, 5))
sketch10.addConstraint(Sketcher.Constraint("Equal", 5, 6))
sketch10.addConstraint(Sketcher.Constraint("Horizontal", 4, 3, 5, 3))
sketch10.addConstraint(Sketcher.Constraint("Horizontal", 1, 3, 6, 3))
sketch10.addConstraint(Sketcher.Constraint("Vertical", 0, 3, 1, 3))
sketch10.addConstraint(Sketcher.Constraint("Vertical", 1, 3, 2, 3))
sketch10.addConstraint(Sketcher.Constraint("Vertical", 3, 3, 6, 3))
sketch10.addConstraint(Sketcher.Constraint("Diameter", 0, 4.0))
sketch10.addConstraint(Sketcher.Constraint("Diameter", 3, 6.2))
sketch10.addConstraint(Sketcher.Constraint("DistanceY", 0, 3, 1, 3, 6.3))
sketch10.addConstraint(Sketcher.Constraint("DistanceY", 1, 3, 2, 3, 6.3))
sketch10.addConstraint(Sketcher.Constraint("Diameter", 7, 9.163229))
sketch10.addConstraint(Sketcher.Constraint("Diameter", 8, 9.097672))
sketch10.addConstraint(Sketcher.Constraint("DistanceY", 7, 3, 6, 3, 12.269599))
sketch10.addConstraint(Sketcher.Constraint("DistanceY", 3, 3, 8, 3, 17.2953))
sketch10.addConstraint(Sketcher.Constraint("DistanceX", 4, 3, -1, 1, 55.386688))
sketch10.addConstraint(Sketcher.Constraint("DistanceY", -1, 1, 4, 3, 17.675511))
sketch10.addConstraint(Sketcher.Constraint("DistanceX", 3, 3, 0, 3, 82.460438))
sketch10.addConstraint(Sketcher.Constraint("DistanceY", 3, 3, 0, 3, 15.326828))
sketch10.addConstraint(Sketcher.Constraint("DistanceX", 4, 3, 2, 3, 100.919211))
sketch10.addConstraint(Sketcher.Constraint("DistanceX", 4, 3, 5, 3, 7.938061))
sketch10.addConstraint(Sketcher.Constraint("DistanceX", 3, 3, 7, 3, 5.156959))
sketch10.addConstraint(Sketcher.Constraint("DistanceY", -1, 1, 0, 3, 7.173614))
sketch10.addConstraint(Sketcher.Constraint("DistanceX", 8, 3, -1, 1, 52.013012))
pad10 = body.newObject("PartDesign::Pad", "Pad009")
pad10.Profile = sketch10
pad10.Length = 4.5
pad10.Reversed = True

# Sketch on XZ plane
sketch11 = body.newObject("Sketcher::SketchObject", "Sketch010")
sketch11.AttachmentSupport = (doc.getObject("XZ_Plane"), [""])
sketch11.MapMode = "FlatFace"
sketch11.AttachmentOffset = App.Placement(Vector(0, 0, -1.7), App.Rotation())
add_polygon(sketch11, [(-57, -39), (-57, -32), (-51, -32), (-51, -39)])  # lines 0-3
add_polygon(sketch11, [(-57, -30), (-57, -24), (-51, -24), (-51, -30)])  # lines 4-7
add_polygon(sketch11, [(-57, -22), (-57, -16), (-51, -16), (-51, -22)])  # lines 8-11
sketch11.addConstraint(Sketcher.Constraint("Vertical", 0))
sketch11.addConstraint(Sketcher.Constraint("Horizontal", 1))
sketch11.addConstraint(Sketcher.Constraint("Vertical", 2))
sketch11.addConstraint(Sketcher.Constraint("Horizontal", 3))
sketch11.addConstraint(Sketcher.Constraint("Vertical", 4))
sketch11.addConstraint(Sketcher.Constraint("Horizontal", 5))
sketch11.addConstraint(Sketcher.Constraint("Vertical", 6))
sketch11.addConstraint(Sketcher.Constraint("Horizontal", 7))
sketch11.addConstraint(Sketcher.Constraint("Vertical", 8))
sketch11.addConstraint(Sketcher.Constraint("Horizontal", 9))
sketch11.addConstraint(Sketcher.Constraint("Vertical", 10))
sketch11.addConstraint(Sketcher.Constraint("Horizontal", 11))
sketch11.addConstraint(Sketcher.Constraint("Vertical", 3, 2, 4, 2))
sketch11.addConstraint(Sketcher.Constraint("Vertical", 2, 2, 5, 2))
sketch11.addConstraint(Sketcher.Constraint("Vertical", 7, 2, 8, 2))
sketch11.addConstraint(Sketcher.Constraint("Vertical", 6, 2, 9, 2))
sketch11.addConstraint(Sketcher.Constraint("Equal", 2, 4))
sketch11.addConstraint(Sketcher.Constraint("Equal", 6, 8))
sketch11.addConstraint(Sketcher.Constraint("DistanceX", 1, 1, 1, 2, 5.9))
sketch11.addConstraint(Sketcher.Constraint("DistanceY", 0, 1, 0, 2, 6.5))
sketch11.addConstraint(Sketcher.Constraint("DistanceX", 0, 2, -1, 1, 57.0))
sketch11.addConstraint(Sketcher.Constraint("DistanceY", 2, 2, -1, 1, 39.0))
sketch11.addConstraint(Sketcher.Constraint("DistanceY", 4, 2, -1, 1, 24.0))
sketch11.addConstraint(Sketcher.Constraint("DistanceY", 10, 2, -1, 1, 22.0))
pad11 = body.newObject("PartDesign::Pad", "Pad010")
pad11.Profile = sketch11
pad11.Length = 2.5
pad11.Reversed = True

# Sketch on XZ plane
sketch12 = body.newObject("Sketcher::SketchObject", "Sketch011")
sketch12.AttachmentSupport = (doc.getObject("XZ_Plane"), [""])
sketch12.MapMode = "FlatFace"
sketch12.AttachmentOffset = App.Placement(Vector(0, 0, -1.7), App.Rotation())
add_polygon(sketch12, [(-58, -11), (-58, -1), (-49, -1), (-49, -11)])  # lines 0-3
sketch12.addConstraint(Sketcher.Constraint("Vertical", 0))
sketch12.addConstraint(Sketcher.Constraint("Horizontal", 1))
sketch12.addConstraint(Sketcher.Constraint("Vertical", 2))
sketch12.addConstraint(Sketcher.Constraint("Horizontal", 3))
sketch12.addConstraint(Sketcher.Constraint("DistanceY", 0, 1, 0, 2, 10.0))
sketch12.addConstraint(Sketcher.Constraint("DistanceX", 1, 1, 1, 2, 8.6))
sketch12.addConstraint(Sketcher.Constraint("DistanceY", 0, 2, -1, 1, 1.0))
sketch12.addConstraint(Sketcher.Constraint("DistanceX", 0, 2, -1, 1, 57.5))
pad12 = body.newObject("PartDesign::Pad", "Pad011")
pad12.Profile = sketch12
pad12.Length = 4.8
pad12.Reversed = True

# Sketch on XZ plane
sketch13 = body.newObject("Sketcher::SketchObject", "Sketch012")
sketch13.AttachmentSupport = (doc.getObject("XZ_Plane"), [""])
sketch13.MapMode = "FlatFace"
sketch13.AttachmentOffset = App.Placement(Vector(0, 0, -1.7), App.Rotation())
add_polygon(sketch13, [(-22, 6), (-22, 14), (-16, 14), (-16, 6)])  # lines 0-3
sketch13.addConstraint(Sketcher.Constraint("Vertical", 0))
sketch13.addConstraint(Sketcher.Constraint("Horizontal", 1))
sketch13.addConstraint(Sketcher.Constraint("Vertical", 2))
sketch13.addConstraint(Sketcher.Constraint("Horizontal", 3))
sketch13.addConstraint(Sketcher.Constraint("DistanceX", 1, 1, 1, 2, 5.1))
sketch13.addConstraint(Sketcher.Constraint("DistanceY", 0, 1, 0, 2, 7.5))
sketch13.addConstraint(Sketcher.Constraint("DistanceY", -1, 1, 2, 2, 6.0))
sketch13.addConstraint(Sketcher.Constraint("DistanceX", 0, 2, -1, 1, 21.5))
pad13 = body.newObject("PartDesign::Pad", "Pad012")
pad13.Profile = sketch13
pad13.Length = 7.8
pad13.Reversed = True

# Sketch on XZ plane
sketch14 = body.newObject("Sketcher::SketchObject", "Sketch013")
sketch14.AttachmentSupport = (doc.getObject("XZ_Plane"), [""])
sketch14.MapMode = "FlatFace"
sketch14.AttachmentOffset = App.Placement(Vector(0, 0, -1.7), App.Rotation())
add_polygon(sketch14, [(-10, -2), (-10, 12), (4, 12), (4, -2)])  # lines 0-3
sketch14.addConstraint(Sketcher.Constraint("Vertical", 0))
sketch14.addConstraint(Sketcher.Constraint("Horizontal", 1))
sketch14.addConstraint(Sketcher.Constraint("Vertical", 2))
sketch14.addConstraint(Sketcher.Constraint("Horizontal", 3))
sketch14.addConstraint(Sketcher.Constraint("Equal", 3, 0))
sketch14.addConstraint(Sketcher.Constraint("DistanceX", 1, 1, 1, 2, 14.0))
sketch14.addConstraint(Sketcher.Constraint("DistanceY", -1, 1, 0, 2, 12.0))
sketch14.addConstraint(Sketcher.Constraint("DistanceX", 0, 2, -1, 1, 10.3))
pad14 = body.newObject("PartDesign::Pad", "Pad013")
pad14.Profile = sketch14
pad14.Length = 2
pad14.Reversed = True

# Sketch on XZ plane
sketch15 = body.newObject("Sketcher::SketchObject", "Sketch014")
sketch15.AttachmentSupport = (doc.getObject("XZ_Plane"), [""])
sketch15.MapMode = "FlatFace"
sketch15.AttachmentOffset = App.Placement(Vector(0, 0, -1.7), App.Rotation())
add_polygon(sketch15, [(-25, 35), (-25, 40), (-15, 40), (-15, 35)])  # lines 0-3
add_polygon(sketch15, [(-12, 35), (-12, 40), (-2, 40), (-2, 35)])  # lines 4-7
add_polygon(sketch15, [(19, 35), (19, 40), (29, 40), (29, 35)])  # lines 8-11
add_polygon(sketch15, [(4, 33), (4, 40), (14, 40), (14, 33)])  # lines 12-15
add_polygon(sketch15, [(35, 35), (35, 40), (47, 40), (47, 35)])  # lines 16-19
add_polygon(sketch15, [(53, 35), (53, 40), (63, 40), (63, 35)])  # lines 20-23
sketch15.addConstraint(Sketcher.Constraint("Vertical", 0))
sketch15.addConstraint(Sketcher.Constraint("Horizontal", 1))
sketch15.addConstraint(Sketcher.Constraint("Vertical", 2))
sketch15.addConstraint(Sketcher.Constraint("Horizontal", 3))
sketch15.addConstraint(Sketcher.Constraint("Vertical", 4))
sketch15.addConstraint(Sketcher.Constraint("Horizontal", 5))
sketch15.addConstraint(Sketcher.Constraint("Vertical", 6))
sketch15.addConstraint(Sketcher.Constraint("Horizontal", 7))
sketch15.addConstraint(Sketcher.Constraint("Vertical", 8))
sketch15.addConstraint(Sketcher.Constraint("Horizontal", 9))
sketch15.addConstraint(Sketcher.Constraint("Vertical", 10))
sketch15.addConstraint(Sketcher.Constraint("Horizontal", 11))
sketch15.addConstraint(Sketcher.Constraint("Vertical", 12))
sketch15.addConstraint(Sketcher.Constraint("Horizontal", 13))
sketch15.addConstraint(Sketcher.Constraint("Vertical", 14))
sketch15.addConstraint(Sketcher.Constraint("Horizontal", 15))
sketch15.addConstraint(Sketcher.Constraint("Vertical", 16))
sketch15.addConstraint(Sketcher.Constraint("Horizontal", 17))
sketch15.addConstraint(Sketcher.Constraint("Vertical", 18))
sketch15.addConstraint(Sketcher.Constraint("Horizontal", 19))
sketch15.addConstraint(Sketcher.Constraint("Vertical", 20))
sketch15.addConstraint(Sketcher.Constraint("Horizontal", 21))
sketch15.addConstraint(Sketcher.Constraint("Vertical", 22))
sketch15.addConstraint(Sketcher.Constraint("Horizontal", 23))
sketch15.addConstraint(Sketcher.Constraint("Horizontal", 1, 2, 4, 2))
sketch15.addConstraint(Sketcher.Constraint("Horizontal", 3, 2, 6, 2))
sketch15.addConstraint(Sketcher.Constraint("Horizontal", 5, 2, 8, 2))
sketch15.addConstraint(Sketcher.Constraint("Horizontal", 7, 2, 10, 2))
sketch15.addConstraint(Sketcher.Constraint("Horizontal", 9, 2, 12, 2))
sketch15.addConstraint(Sketcher.Constraint("Horizontal", 13, 2, 16, 2))
sketch15.addConstraint(Sketcher.Constraint("Horizontal", 11, 2, 18, 2))
sketch15.addConstraint(Sketcher.Constraint("Horizontal", 17, 2, 20, 2))
sketch15.addConstraint(Sketcher.Constraint("Horizontal", 19, 2, 22, 2))
sketch15.addConstraint(Sketcher.Constraint("Equal", 3, 5))
sketch15.addConstraint(Sketcher.Constraint("Equal", 7, 9))
sketch15.addConstraint(Sketcher.Constraint("Equal", 11, 13))
sketch15.addConstraint(Sketcher.Constraint("Equal", 15, 21))
sketch15.addConstraint(Sketcher.Constraint("DistanceX", 1, 1, 1, 2, 10.0))
sketch15.addConstraint(Sketcher.Constraint("DistanceY", 0, 1, 0, 2, 5.0))
sketch15.addConstraint(Sketcher.Constraint("DistanceX", 17, 1, 17, 2, 12.4))
sketch15.addConstraint(Sketcher.Constraint("DistanceY", 12, 1, 12, 2, 7.4))
sketch15.addConstraint(Sketcher.Constraint("DistanceX", 0, 2, -1, 1, 25.0))
sketch15.addConstraint(Sketcher.Constraint("DistanceY", -1, 1, 0, 2, 40.0))
sketch15.addConstraint(Sketcher.Constraint("DistanceX", 4, 2, -1, 1, 12.1))
sketch15.addConstraint(Sketcher.Constraint("DistanceX", -1, 1, 8, 2, 19.1))
sketch15.addConstraint(Sketcher.Constraint("DistanceX", -1, 1, 12, 2, 3.5))
sketch15.addConstraint(Sketcher.Constraint("DistanceX", -1, 1, 16, 2, 34.8))
sketch15.addConstraint(Sketcher.Constraint("DistanceX", -1, 1, 20, 2, 52.6))
pad15 = body.newObject("PartDesign::Pad", "Pad014")
pad15.Profile = sketch15
pad15.Length = 8.3
pad15.Reversed = True

# Sketch on XZ plane
sketch16 = body.newObject("Sketcher::SketchObject", "Sketch015")
sketch16.AttachmentSupport = (doc.getObject("XZ_Plane"), [""])
sketch16.MapMode = "FlatFace"
sketch16.AttachmentOffset = App.Placement(Vector(0, 0, -1.7), App.Rotation())
add_polygon(sketch16, [(-16, -16), (-16, -13.6), (-6.2, -13.6), (-6.2, -16)])  # lines 0-3
add_polygon(sketch16, [(-38.5, -16), (-38.5, -13.6), (-28.7, -13.6), (-28.7, -16)])  # lines 4-7
add_polygon(sketch16, [(6.5, -16), (6.5, -13.6), (16.3, -13.6), (16.3, -16)])  # lines 8-11
add_polygon(sketch16, [(29, -16), (29, -13.6), (38.8, -13.6), (38.8, -16)])  # lines 12-15
add_polygon(sketch16, [(51.5, -16), (51.5, -13.6), (61.3, -13.6), (61.3, -16)])  # lines 16-19
sketch16.addConstraint(Sketcher.Constraint("Vertical", 0))
sketch16.addConstraint(Sketcher.Constraint("Horizontal", 1))
sketch16.addConstraint(Sketcher.Constraint("Vertical", 2))
sketch16.addConstraint(Sketcher.Constraint("Horizontal", 3))
sketch16.addConstraint(Sketcher.Constraint("Vertical", 4))
sketch16.addConstraint(Sketcher.Constraint("Horizontal", 5))
sketch16.addConstraint(Sketcher.Constraint("Vertical", 6))
sketch16.addConstraint(Sketcher.Constraint("Horizontal", 7))
sketch16.addConstraint(Sketcher.Constraint("Vertical", 8))
sketch16.addConstraint(Sketcher.Constraint("Horizontal", 9))
sketch16.addConstraint(Sketcher.Constraint("Vertical", 10))
sketch16.addConstraint(Sketcher.Constraint("Horizontal", 11))
sketch16.addConstraint(Sketcher.Constraint("Vertical", 12))
sketch16.addConstraint(Sketcher.Constraint("Horizontal", 13))
sketch16.addConstraint(Sketcher.Constraint("Vertical", 14))
sketch16.addConstraint(Sketcher.Constraint("Horizontal", 15))
sketch16.addConstraint(Sketcher.Constraint("Vertical", 16))
sketch16.addConstraint(Sketcher.Constraint("Horizontal", 17))
sketch16.addConstraint(Sketcher.Constraint("Vertical", 18))
sketch16.addConstraint(Sketcher.Constraint("Horizontal", 19))
sketch16.addConstraint(Sketcher.Constraint("Horizontal", 1, 2, 4, 2))
sketch16.addConstraint(Sketcher.Constraint("Horizontal", 3, 2, 6, 2))
sketch16.addConstraint(Sketcher.Constraint("Horizontal", 5, 2, 8, 2))
sketch16.addConstraint(Sketcher.Constraint("Horizontal", 7, 2, 10, 2))
sketch16.addConstraint(Sketcher.Constraint("Horizontal", 9, 2, 12, 2))
sketch16.addConstraint(Sketcher.Constraint("Horizontal", 11, 2, 14, 2))
sketch16.addConstraint(Sketcher.Constraint("Horizontal", 13, 2, 16, 2))
sketch16.addConstraint(Sketcher.Constraint("Horizontal", 15, 2, 18, 2))
sketch16.addConstraint(Sketcher.Constraint("Equal", 3, 5))
sketch16.addConstraint(Sketcher.Constraint("Equal", 7, 9))
sketch16.addConstraint(Sketcher.Constraint("Equal", 11, 13))
sketch16.addConstraint(Sketcher.Constraint("Equal", 15, 17))
sketch16.addConstraint(Sketcher.Constraint("DistanceX", 1, 1, 1, 2, 9.8))
sketch16.addConstraint(Sketcher.Constraint("DistanceY", 0, 1, 0, 2, 2.4))
sketch16.addConstraint(Sketcher.Constraint("DistanceX", 0, 2, -1, 1, 16.0))
sketch16.addConstraint(Sketcher.Constraint("DistanceY", 2, 2, -1, 1, 16.0))
sketch16.addConstraint(Sketcher.Constraint("DistanceX", -1, 1, 12, 2, 29.0))
sketch16.addConstraint(Sketcher.Constraint("DistanceX", 4, 2, -1, 1, 38.5))
sketch16.addConstraint(Sketcher.Constraint("DistanceX", -1, 1, 8, 2, 6.5))
sketch16.addConstraint(Sketcher.Constraint("DistanceX", -1, 1, 16, 2, 51.5))
pad16 = body.newObject("PartDesign::Pad", "Pad015")
pad16.Profile = sketch16
pad16.Length = 8.3
pad16.Reversed = True

doc.recompute()
